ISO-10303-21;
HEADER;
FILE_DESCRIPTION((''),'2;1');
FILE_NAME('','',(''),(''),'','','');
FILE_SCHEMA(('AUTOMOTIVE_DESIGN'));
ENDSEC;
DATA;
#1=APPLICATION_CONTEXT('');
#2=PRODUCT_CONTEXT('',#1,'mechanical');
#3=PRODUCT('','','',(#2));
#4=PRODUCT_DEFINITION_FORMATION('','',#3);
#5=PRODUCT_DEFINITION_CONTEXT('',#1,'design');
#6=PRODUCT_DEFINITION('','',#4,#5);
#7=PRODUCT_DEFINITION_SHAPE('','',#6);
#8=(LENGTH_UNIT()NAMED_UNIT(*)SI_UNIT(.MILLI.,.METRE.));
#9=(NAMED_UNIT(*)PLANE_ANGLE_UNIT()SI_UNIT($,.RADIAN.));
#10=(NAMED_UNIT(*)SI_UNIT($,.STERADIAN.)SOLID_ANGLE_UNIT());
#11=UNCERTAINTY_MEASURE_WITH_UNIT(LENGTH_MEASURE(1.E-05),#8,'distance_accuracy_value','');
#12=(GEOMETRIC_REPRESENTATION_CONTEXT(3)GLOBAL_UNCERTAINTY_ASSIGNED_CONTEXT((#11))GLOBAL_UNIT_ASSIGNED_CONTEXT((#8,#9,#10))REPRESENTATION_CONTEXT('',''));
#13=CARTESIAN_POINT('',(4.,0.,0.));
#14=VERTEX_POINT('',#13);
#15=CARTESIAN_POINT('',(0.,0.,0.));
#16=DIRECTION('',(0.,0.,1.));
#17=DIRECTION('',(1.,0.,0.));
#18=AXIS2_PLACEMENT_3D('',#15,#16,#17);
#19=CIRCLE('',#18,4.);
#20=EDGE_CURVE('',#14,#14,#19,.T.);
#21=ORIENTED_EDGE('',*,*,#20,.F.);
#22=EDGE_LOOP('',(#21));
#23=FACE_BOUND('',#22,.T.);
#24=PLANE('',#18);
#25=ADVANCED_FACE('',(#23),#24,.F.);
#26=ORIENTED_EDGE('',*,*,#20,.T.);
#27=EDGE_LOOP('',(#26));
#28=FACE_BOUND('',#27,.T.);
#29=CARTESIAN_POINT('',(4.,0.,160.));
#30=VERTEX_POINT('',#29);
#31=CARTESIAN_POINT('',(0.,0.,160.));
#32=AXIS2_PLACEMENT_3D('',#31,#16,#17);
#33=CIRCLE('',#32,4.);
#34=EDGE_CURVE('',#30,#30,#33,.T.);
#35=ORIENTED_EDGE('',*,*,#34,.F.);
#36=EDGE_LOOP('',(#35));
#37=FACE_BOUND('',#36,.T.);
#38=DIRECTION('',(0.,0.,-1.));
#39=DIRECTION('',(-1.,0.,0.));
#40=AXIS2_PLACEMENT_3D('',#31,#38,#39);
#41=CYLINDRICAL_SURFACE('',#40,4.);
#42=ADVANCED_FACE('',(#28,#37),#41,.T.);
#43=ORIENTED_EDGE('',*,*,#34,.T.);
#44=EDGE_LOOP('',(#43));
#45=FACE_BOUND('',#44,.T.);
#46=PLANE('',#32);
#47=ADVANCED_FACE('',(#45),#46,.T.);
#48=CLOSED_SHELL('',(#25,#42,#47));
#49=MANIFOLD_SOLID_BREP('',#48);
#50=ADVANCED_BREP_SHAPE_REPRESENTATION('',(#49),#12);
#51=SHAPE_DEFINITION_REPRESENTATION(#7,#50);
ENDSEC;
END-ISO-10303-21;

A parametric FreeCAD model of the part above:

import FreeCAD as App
import Part
import Sketcher
Q = App.Units.Quantity

doc = App.newDocument("Part")
body = doc.addObject("PartDesign::Body", "Body")

# Sketch on XY plane
sketch1 = body.newObject("Sketcher::SketchObject", "Sketch")
sketch1.AttachmentSupport = (doc.getObject("XY_Plane"), [""])
sketch1.MapMode = "FlatFace"
sketch1.addGeometry(Part.Circle(App.Vector(0, 0, 0), App.Vector(0, 0, 1), 4), False)
sketch1.addConstraint([
    Sketcher.Constraint("Coincident", 0, 3, -1, 1),
    Sketcher.Constraint("Diameter", 0, Q("8 mm")),
])
pad1 = body.newObject("PartDesign::Pad", "Pad")
pad1.Profile = sketch1
pad1.Length = 160

doc.recompute()
